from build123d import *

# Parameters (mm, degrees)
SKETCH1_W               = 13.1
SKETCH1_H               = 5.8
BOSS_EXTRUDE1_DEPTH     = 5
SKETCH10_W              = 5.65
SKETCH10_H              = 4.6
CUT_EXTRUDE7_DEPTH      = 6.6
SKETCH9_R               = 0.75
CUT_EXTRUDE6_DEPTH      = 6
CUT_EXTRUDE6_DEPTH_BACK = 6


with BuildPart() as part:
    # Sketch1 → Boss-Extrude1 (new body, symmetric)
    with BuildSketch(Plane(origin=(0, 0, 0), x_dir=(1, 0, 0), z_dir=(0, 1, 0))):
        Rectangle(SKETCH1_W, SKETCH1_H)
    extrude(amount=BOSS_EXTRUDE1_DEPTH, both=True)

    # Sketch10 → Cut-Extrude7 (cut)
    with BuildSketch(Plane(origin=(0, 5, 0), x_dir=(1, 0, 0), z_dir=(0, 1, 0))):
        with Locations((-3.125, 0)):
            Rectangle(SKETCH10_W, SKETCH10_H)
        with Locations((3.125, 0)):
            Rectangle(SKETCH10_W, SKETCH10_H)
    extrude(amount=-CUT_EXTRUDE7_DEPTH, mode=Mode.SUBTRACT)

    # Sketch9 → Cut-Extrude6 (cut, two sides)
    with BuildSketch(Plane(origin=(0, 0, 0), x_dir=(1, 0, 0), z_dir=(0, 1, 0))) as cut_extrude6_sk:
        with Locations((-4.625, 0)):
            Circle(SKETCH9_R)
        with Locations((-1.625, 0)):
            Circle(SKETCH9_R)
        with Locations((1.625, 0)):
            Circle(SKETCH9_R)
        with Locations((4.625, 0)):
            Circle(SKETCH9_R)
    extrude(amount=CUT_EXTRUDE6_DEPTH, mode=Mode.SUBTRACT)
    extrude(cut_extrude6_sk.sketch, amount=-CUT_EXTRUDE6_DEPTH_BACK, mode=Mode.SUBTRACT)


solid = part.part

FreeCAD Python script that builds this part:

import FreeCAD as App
import Part
import Sketcher

V = App.Vector
Q = App.Units.Quantity

doc = App.newDocument("Part")
body = doc.addObject("PartDesign::Body", "Body")

sketch1 = body.newObject("Sketcher::SketchObject", "Sketch")
sketch1.AttachmentSupport = (doc.getObject("XZ_Plane"), [""])
sketch1.MapMode = "FlatFace"
sketch1.addGeometry([
    Part.LineSegment(V(-7, -3, 0), V(-7, 3, 0)),
    Part.LineSegment(V(-7, 3, 0), V(7, 3, 0)),
    Part.LineSegment(V(7, 3, 0), V(7, -3, 0)),
    Part.LineSegment(V(7, -3, 0), V(-7, -3, 0)),
], False)
sketch1.addConstraint([
    Sketcher.Constraint("Coincident", 0, 2, 1, 1),
    Sketcher.Constraint("Coincident", 1, 2, 2, 1),
    Sketcher.Constraint("Coincident", 2, 2, 3, 1),
    Sketcher.Constraint("Coincident", 3, 2, 0, 1),
    Sketcher.Constraint("Vertical", 0),
    Sketcher.Constraint("Horizontal", 1),
    Sketcher.Constraint("Vertical", 2),
    Sketcher.Constraint("Horizontal", 3),
    Sketcher.Constraint("Symmetric", 0, 2, 2, 2, -1, 1),
    Sketcher.Constraint("DistanceX", 1, 1, 1, 2, Q("13.1 mm")),
    Sketcher.Constraint("DistanceY", 0, 1, 0, 2, Q("5.8 mm")),
])
pad1 = body.newObject("PartDesign::Pad", "Pad")
pad1.Profile = sketch1
pad1.Length = 10
pad1.Midplane = True

sketch2 = body.newObject("Sketcher::SketchObject", "Sketch001")
sketch2.AttachmentSupport = (doc.getObject("XZ_Plane"), [""])
sketch2.MapMode = "FlatFace"
sketch2.AttachmentOffset = App.Placement(V(0, 0, -5), App.Rotation())
sketch2.addGeometry([
    Part.LineSegment(V(-6, -2.3, 0), V(-6, 2.3, 0)),
    Part.LineSegment(V(-6, 2.3, 0), V(-0.3, 2.3, 0)),
    Part.LineSegment(V(-0.3, 2.3, 0), V(-0.3, -2.3, 0)),
    Part.LineSegment(V(-0.3, -2.3, 0), V(-6, -2.3, 0)),
    Part.LineSegment(V(0.3, -2.3, 0), V(0.3, 2.3, 0)),
    Part.LineSegment(V(0.3, 2.3, 0), V(6, 2.3, 0)),
    Part.LineSegment(V(6, 2.3, 0), V(6, -2.3, 0)),
    Part.LineSegment(V(6, -2.3, 0), V(0.3, -2.3, 0)),
], False)
sketch2.addConstraint([
    Sketcher.Constraint("Coincident", 0, 2, 1, 1),
    Sketcher.Constraint("Coincident", 1, 2, 2, 1),
    Sketcher.Constraint("Coincident", 2, 2, 3, 1),
    Sketcher.Constraint("Coincident", 3, 2, 0, 1),
    Sketcher.Constraint("Coincident", 4, 2, 5, 1),
    Sketcher.Constraint("Coincident", 5, 2, 6, 1),
    Sketcher.Constraint("Coincident", 6, 2, 7, 1),
    Sketcher.Constraint("Coincident", 7, 2, 4, 1),
    Sketcher.Constraint("Vertical", 0),
    Sketcher.Constraint("Horizontal", 1),
    Sketcher.Constraint("Vertical", 2),
    Sketcher.Constraint("Horizontal", 3),
    Sketcher.Constraint("Vertical", 4),
    Sketcher.Constraint("Horizontal", 5),
    Sketcher.Constraint("Vertical", 6),
    Sketcher.Constraint("Horizontal", 7),
    Sketcher.Constraint("Symmetric", 2, 2, 4, 2, -1, 1),
    Sketcher.Constraint("Symmetric", 0, 2, 6, 2, -1, 1),
    Sketcher.Constraint("Horizontal", 1, 2, 4, 2),
    Sketcher.Constraint("DistanceY", 0, 1, 0, 2, Q("4.6 mm")),
    Sketcher.Constraint("DistanceX", 1, 1, 1, 2, Q("5.65 mm")),
    Sketcher.Constraint("DistanceX", 1, 2, -1, 1, Q("0.3 mm")),
])
pocket1 = body.newObject("PartDesign::Pocket", "Pocket")
pocket1.Profile = sketch2
pocket1.Length = 6.6
pocket1.Reversed = True

sketch3 = body.newObject("Sketcher::SketchObject", "Sketch002")
sketch3.AttachmentSupport = (doc.getObject("XZ_Plane"), [""])
sketch3.MapMode = "FlatFace"
sketch3.addGeometry([
    Part.Circle(V(-4.6, 0, 0), V(0, 0, 1), 0.8),
    Part.Circle(V(-1.6, 0, 0), V(0, 0, 1), 0.8),
    Part.Circle(V(1.6, 0, 0), V(0, 0, 1), 0.8),
    Part.Circle(V(4.6, 0, 0), V(0, 0, 1), 0.8),
], False)
sketch3.addConstraint([
    Sketcher.Constraint("Equal", 0, 1),
    Sketcher.Constraint("Equal", 1, 2),
    Sketcher.Constraint("Equal", 2, 3),
    Sketcher.Constraint("Symmetric", 1, 3, 2, 3, -1, 1),
    Sketcher.Constraint("Symmetric", 0, 3, 3, 3, -1, 1),
    Sketcher.Constraint("PointOnObject", 0, 3, -1),
    Sketcher.Constraint("PointOnObject", 1, 3, -1),
    Sketcher.Constraint("Diameter", 0, Q("1.5 mm")),
    Sketcher.Constraint("DistanceX", 0, 3, 1, 3, Q("3 mm")),
    Sketcher.Constraint("DistanceX", 1, 3, 2, 3, Q("3.25 mm")),
])
pocket2 = body.newObject("PartDesign::Pocket", "Pocket001")
pocket2.Profile = sketch3
pocket2.Type = "ThroughAll"
pocket2.Midplane = True

doc.recompute()
